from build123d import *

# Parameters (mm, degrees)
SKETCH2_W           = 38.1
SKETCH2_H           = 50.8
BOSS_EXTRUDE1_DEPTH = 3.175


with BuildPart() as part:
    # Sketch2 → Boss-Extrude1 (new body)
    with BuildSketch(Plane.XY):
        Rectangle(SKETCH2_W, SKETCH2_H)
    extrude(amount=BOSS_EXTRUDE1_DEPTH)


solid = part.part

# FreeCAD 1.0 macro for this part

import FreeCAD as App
import Part
import Sketcher

V = App.Vector
Q = App.Units.Quantity

doc = App.newDocument("Part")
body = doc.addObject("PartDesign::Body", "Body")

sketch1 = body.newObject("Sketcher::SketchObject", "Sketch")
sketch1.AttachmentSupport = (doc.getObject("XY_Plane"), [""])
sketch1.MapMode = "FlatFace"
sketch1.addGeometry(Part.LineSegment(V(-19.05, 25.4, 0), V(-19.05, -25.4, 0)), False)
sketch1.addGeometry(Part.LineSegment(V(-19.05, -25.4, 0), V(19.05, -25.4, 0)), False)
sketch1.addGeometry(Part.LineSegment(V(19.05, -25.4, 0), V(19.05, 25.4, 0)), False)
sketch1.addGeometry(Part.LineSegment(V(19.05, 25.4, 0), V(-19.05, 25.4, 0)), False)
sketch1.addConstraint(Sketcher.Constraint("Coincident", 0, 2, 1, 1))
sketch1.addConstraint(Sketcher.Constraint("Coincident", 1, 2, 2, 1))
sketch1.addConstraint(Sketcher.Constraint("Coincident", 2, 2, 3, 1))
sketch1.addConstraint(Sketcher.Constraint("Coincident", 3, 2, 0, 1))
sketch1.addConstraint(Sketcher.Constraint("Vertical", 0))
sketch1.addConstraint(Sketcher.Constraint("Horizontal", 1))
sketch1.addConstraint(Sketcher.Constraint("Vertical", 2))
sketch1.addConstraint(Sketcher.Constraint("Horizontal", 3))
sketch1.addConstraint(Sketcher.Constraint("Symmetric", 0, 2, 2, 2, -1, 1))
sketch1.addConstraint(Sketcher.Constraint("DistanceY", 0, 2, 0, 1, Q("2 in")))
sketch1.addConstraint(Sketcher.Constraint("DistanceX", 1, 1, 1, 2, Q("1.5 in")))
pad1 = body.newObject("PartDesign::Pad", "Pad")
pad1.Profile = sketch1
pad1.Length = Q("0.125 in")

doc.recompute()
